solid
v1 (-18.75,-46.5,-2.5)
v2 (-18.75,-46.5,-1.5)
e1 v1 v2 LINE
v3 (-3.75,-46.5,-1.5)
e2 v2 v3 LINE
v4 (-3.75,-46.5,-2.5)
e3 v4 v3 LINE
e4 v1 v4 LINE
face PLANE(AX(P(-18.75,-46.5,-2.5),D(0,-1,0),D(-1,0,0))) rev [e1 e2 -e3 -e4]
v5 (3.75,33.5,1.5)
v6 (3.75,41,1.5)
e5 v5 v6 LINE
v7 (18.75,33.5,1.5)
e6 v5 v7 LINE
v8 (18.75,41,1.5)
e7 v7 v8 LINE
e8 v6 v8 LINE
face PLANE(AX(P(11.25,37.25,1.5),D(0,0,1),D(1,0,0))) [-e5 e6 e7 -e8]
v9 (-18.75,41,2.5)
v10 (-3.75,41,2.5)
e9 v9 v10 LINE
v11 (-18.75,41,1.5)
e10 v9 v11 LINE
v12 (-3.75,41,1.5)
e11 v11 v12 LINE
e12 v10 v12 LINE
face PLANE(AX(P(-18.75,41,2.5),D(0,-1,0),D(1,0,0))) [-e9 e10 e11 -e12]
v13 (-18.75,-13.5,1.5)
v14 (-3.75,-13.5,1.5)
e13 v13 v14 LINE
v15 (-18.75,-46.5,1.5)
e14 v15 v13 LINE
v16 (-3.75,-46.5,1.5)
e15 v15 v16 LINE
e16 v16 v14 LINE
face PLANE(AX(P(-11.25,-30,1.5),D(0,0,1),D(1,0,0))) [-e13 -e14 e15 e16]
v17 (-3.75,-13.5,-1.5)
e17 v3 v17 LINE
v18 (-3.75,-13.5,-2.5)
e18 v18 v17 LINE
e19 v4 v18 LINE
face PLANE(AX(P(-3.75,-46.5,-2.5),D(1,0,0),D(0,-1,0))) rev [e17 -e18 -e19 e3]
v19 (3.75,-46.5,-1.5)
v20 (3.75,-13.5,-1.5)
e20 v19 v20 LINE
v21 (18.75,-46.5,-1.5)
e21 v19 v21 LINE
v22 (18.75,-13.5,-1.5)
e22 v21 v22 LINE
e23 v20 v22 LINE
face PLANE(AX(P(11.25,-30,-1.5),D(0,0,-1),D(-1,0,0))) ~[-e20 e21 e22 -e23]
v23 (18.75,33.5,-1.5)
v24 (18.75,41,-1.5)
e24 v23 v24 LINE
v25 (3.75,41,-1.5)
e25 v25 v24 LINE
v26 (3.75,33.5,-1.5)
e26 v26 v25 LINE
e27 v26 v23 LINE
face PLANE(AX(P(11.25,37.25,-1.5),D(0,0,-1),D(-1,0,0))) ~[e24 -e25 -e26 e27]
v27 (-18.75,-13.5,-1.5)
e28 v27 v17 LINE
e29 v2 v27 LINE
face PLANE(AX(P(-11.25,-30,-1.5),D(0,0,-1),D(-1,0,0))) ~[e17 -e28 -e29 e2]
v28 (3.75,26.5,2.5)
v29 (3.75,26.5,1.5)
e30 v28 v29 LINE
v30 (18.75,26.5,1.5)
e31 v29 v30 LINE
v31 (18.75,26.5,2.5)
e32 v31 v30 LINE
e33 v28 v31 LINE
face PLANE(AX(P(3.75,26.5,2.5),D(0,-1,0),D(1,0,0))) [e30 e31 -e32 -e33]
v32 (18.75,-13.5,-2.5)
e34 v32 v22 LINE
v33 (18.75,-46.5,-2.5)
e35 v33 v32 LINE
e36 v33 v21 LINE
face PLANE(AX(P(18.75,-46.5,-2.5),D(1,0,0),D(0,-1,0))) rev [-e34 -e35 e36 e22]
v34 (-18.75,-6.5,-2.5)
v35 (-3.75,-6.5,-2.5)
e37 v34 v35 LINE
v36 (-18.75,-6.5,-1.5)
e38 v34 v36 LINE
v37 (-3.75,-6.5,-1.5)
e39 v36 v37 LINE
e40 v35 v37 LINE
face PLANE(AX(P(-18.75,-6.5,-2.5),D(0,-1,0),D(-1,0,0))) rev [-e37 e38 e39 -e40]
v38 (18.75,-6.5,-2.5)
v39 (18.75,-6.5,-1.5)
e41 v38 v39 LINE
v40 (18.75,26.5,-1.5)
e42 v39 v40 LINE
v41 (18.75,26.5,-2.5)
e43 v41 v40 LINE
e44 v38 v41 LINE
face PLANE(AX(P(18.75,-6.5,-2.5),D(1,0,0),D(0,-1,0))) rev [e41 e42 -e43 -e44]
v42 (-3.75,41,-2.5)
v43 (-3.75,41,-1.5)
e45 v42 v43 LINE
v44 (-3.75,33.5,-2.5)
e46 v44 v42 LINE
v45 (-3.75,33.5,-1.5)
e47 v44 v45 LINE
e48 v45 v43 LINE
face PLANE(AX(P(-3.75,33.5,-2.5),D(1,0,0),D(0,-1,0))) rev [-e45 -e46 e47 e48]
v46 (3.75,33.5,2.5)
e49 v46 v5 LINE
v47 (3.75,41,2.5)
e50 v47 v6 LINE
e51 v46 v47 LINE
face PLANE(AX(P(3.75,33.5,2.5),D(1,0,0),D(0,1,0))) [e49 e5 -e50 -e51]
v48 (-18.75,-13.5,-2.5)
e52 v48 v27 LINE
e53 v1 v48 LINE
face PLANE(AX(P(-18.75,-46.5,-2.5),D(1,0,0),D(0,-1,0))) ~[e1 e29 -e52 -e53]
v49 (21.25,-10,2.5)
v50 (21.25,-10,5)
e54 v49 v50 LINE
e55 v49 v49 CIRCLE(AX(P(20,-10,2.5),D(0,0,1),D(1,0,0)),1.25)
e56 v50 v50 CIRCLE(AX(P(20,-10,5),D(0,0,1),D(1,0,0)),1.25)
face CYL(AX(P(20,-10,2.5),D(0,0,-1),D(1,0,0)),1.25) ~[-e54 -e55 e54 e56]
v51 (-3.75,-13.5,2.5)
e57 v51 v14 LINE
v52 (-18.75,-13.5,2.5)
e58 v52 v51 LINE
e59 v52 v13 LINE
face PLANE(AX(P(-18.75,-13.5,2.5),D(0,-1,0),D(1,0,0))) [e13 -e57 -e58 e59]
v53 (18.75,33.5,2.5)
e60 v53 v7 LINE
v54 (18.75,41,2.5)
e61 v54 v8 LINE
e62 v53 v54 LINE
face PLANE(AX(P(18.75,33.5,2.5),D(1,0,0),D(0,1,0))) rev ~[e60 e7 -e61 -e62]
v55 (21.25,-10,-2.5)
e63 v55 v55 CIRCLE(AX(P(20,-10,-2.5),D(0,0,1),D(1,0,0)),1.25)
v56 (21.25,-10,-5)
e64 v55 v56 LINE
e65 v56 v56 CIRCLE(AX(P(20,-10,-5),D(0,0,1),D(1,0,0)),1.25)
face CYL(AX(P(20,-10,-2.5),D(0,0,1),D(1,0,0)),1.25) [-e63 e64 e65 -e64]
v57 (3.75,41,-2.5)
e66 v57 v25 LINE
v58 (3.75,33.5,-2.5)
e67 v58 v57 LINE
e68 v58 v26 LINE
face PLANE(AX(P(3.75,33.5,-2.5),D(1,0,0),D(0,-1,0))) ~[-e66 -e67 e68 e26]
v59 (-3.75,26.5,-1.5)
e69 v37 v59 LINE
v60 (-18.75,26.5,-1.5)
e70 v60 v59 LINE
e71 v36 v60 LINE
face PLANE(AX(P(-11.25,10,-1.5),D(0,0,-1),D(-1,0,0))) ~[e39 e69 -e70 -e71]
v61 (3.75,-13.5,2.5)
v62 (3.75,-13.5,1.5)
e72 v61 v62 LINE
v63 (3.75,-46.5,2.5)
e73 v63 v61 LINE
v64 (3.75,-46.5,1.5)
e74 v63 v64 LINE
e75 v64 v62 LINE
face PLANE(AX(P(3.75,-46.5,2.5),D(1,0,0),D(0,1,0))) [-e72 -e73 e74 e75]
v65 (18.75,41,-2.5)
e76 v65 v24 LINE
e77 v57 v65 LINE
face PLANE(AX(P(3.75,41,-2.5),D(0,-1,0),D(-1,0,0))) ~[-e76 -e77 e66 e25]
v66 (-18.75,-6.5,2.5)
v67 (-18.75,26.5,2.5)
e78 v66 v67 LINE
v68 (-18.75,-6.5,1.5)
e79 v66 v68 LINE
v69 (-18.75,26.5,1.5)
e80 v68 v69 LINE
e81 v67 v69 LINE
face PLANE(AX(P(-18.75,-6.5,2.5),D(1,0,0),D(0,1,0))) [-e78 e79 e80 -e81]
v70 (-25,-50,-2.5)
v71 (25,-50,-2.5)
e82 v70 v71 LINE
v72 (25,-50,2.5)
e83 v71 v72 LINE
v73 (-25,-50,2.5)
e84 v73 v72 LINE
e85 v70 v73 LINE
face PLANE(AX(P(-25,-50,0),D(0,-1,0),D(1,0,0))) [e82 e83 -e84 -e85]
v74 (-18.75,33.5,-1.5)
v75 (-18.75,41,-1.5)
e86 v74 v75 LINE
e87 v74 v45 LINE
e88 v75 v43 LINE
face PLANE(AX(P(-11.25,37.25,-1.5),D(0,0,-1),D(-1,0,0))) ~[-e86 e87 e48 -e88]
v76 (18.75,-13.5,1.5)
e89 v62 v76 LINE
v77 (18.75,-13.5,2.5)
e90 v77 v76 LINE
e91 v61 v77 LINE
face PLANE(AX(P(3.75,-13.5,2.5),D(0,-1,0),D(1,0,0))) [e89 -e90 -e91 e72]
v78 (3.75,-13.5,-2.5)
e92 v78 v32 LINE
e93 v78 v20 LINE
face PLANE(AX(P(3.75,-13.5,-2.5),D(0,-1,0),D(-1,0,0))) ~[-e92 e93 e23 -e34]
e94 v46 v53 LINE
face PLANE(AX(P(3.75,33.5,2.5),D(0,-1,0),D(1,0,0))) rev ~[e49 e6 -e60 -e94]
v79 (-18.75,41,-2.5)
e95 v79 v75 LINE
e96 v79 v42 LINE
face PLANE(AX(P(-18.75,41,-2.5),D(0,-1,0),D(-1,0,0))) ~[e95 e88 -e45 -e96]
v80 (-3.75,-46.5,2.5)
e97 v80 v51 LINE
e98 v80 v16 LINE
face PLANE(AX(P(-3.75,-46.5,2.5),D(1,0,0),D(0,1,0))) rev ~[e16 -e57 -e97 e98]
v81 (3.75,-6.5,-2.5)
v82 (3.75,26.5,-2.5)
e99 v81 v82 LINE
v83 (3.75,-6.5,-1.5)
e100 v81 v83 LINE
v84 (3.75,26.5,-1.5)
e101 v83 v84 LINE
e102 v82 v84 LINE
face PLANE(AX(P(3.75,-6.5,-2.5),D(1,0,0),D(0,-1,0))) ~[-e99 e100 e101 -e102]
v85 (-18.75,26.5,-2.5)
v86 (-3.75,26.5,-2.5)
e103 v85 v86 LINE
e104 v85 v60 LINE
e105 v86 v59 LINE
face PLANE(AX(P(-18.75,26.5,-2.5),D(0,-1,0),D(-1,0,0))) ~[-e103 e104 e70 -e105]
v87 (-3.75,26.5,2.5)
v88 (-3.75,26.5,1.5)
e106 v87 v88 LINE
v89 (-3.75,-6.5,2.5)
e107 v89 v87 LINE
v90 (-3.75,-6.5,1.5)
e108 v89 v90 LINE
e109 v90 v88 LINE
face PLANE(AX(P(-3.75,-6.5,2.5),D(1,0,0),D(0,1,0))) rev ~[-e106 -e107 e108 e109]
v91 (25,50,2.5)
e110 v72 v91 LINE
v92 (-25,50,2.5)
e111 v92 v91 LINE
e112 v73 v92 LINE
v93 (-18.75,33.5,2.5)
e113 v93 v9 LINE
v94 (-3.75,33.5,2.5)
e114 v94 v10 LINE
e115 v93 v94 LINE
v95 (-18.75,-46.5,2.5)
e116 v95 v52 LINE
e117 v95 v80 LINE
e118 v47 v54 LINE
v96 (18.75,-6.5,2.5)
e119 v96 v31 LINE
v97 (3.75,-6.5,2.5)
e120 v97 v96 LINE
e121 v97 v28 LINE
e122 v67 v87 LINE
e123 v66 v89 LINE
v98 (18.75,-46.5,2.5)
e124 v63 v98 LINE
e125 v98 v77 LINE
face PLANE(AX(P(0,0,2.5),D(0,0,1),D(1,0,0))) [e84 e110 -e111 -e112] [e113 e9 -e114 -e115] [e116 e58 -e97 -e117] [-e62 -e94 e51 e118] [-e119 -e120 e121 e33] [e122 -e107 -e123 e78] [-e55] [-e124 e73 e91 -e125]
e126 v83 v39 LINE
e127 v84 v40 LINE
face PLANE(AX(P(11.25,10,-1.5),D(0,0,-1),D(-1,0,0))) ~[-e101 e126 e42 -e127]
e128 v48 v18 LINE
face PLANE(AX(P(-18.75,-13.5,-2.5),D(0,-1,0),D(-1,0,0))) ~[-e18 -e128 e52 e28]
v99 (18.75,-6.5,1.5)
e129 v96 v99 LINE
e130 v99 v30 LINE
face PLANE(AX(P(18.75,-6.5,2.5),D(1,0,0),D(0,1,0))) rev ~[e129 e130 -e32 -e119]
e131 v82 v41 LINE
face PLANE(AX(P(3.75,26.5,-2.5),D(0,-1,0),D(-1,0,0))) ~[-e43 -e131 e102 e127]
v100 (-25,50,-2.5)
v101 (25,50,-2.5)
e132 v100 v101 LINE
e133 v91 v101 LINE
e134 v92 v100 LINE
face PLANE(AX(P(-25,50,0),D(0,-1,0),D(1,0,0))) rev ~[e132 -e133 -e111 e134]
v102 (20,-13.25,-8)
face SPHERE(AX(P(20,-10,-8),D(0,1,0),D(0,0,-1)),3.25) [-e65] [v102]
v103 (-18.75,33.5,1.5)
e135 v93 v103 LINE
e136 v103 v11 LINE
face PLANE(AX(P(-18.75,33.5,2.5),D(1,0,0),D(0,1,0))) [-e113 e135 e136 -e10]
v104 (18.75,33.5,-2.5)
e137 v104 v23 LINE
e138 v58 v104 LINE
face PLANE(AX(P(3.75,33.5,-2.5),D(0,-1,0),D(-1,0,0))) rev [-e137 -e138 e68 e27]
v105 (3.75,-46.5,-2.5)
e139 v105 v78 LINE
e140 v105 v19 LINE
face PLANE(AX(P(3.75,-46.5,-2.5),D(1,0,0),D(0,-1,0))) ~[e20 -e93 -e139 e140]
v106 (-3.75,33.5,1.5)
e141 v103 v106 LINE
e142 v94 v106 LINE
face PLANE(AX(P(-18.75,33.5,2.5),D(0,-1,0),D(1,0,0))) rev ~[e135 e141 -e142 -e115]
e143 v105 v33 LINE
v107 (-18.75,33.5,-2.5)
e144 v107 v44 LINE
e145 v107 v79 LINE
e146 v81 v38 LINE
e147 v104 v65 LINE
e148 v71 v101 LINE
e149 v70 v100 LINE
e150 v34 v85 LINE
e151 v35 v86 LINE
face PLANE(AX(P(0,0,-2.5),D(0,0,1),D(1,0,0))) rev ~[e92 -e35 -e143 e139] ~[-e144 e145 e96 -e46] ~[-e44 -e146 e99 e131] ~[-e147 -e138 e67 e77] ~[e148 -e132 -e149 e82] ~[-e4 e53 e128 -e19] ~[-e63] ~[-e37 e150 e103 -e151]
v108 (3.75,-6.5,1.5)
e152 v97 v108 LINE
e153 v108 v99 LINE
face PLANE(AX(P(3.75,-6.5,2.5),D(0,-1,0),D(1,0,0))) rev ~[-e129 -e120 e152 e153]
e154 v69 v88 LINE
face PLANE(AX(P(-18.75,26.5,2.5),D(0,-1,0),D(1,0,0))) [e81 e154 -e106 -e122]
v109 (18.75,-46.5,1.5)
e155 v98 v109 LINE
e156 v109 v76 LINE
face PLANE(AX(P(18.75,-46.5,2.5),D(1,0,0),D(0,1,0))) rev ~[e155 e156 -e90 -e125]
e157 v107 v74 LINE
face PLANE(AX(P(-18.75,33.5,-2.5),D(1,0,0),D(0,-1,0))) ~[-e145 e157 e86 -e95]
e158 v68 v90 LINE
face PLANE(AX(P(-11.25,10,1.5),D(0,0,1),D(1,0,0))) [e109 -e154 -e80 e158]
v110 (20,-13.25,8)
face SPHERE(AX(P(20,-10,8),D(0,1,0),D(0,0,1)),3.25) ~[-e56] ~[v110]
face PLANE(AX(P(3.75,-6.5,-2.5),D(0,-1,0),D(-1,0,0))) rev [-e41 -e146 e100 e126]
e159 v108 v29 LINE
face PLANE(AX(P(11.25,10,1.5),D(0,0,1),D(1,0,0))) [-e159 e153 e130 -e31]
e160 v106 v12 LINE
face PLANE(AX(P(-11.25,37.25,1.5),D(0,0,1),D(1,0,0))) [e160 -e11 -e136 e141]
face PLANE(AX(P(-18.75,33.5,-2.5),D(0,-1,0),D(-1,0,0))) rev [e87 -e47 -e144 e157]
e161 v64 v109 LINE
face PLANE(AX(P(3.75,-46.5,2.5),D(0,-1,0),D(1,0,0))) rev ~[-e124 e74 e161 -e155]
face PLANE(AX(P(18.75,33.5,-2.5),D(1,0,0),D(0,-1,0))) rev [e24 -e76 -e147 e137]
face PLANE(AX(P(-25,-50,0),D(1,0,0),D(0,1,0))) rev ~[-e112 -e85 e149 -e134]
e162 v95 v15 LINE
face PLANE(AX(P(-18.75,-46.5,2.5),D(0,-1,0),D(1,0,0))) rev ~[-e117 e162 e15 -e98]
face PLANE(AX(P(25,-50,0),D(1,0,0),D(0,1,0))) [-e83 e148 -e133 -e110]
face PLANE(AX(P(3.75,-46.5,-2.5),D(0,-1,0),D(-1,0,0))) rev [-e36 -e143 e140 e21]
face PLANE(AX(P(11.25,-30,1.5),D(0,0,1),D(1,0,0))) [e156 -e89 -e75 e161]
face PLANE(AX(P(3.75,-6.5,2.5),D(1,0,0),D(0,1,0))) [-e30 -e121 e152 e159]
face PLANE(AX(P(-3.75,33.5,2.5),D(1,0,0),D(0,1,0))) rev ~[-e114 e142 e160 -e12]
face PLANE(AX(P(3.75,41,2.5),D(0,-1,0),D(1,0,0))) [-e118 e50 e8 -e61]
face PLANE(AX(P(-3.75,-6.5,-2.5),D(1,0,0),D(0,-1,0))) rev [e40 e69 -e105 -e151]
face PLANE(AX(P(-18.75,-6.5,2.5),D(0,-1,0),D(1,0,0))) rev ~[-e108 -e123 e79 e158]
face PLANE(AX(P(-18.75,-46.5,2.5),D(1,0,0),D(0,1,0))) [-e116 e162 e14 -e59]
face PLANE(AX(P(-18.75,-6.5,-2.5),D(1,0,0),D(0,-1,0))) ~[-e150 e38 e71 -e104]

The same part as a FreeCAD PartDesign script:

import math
import FreeCAD as App
import Part
import Sketcher
Q = App.Units.Quantity

doc = App.newDocument("Part")
body = doc.addObject("PartDesign::Body", "Body")

sketch1 = doc.addObject("Sketcher::SketchObject", "Sketch")
body.addObject(sketch1)
sketch1.AttachmentSupport = (doc.XY_Plane, [""])
sketch1.MapMode = "FlatFace"
sketch1.addGeometry(Part.LineSegment(App.Vector(-25, 50, 0), App.Vector(-25, -50, 0)), False)
sketch1.addGeometry(Part.LineSegment(App.Vector(-25, -50, 0), App.Vector(25, -50, 0)), False)
sketch1.addGeometry(Part.LineSegment(App.Vector(25, -50, 0), App.Vector(25, 50, 0)), False)
sketch1.addGeometry(Part.LineSegment(App.Vector(25, 50, 0), App.Vector(-25, 50, 0)), False)
sketch1.addConstraint(Sketcher.Constraint("Coincident", 0, 2, 1, 1))
sketch1.addConstraint(Sketcher.Constraint("Coincident", 1, 2, 2, 1))
sketch1.addConstraint(Sketcher.Constraint("Coincident", 2, 2, 3, 1))
sketch1.addConstraint(Sketcher.Constraint("Coincident", 3, 2, 0, 1))
sketch1.addConstraint(Sketcher.Constraint("Vertical", 0))
sketch1.addConstraint(Sketcher.Constraint("Horizontal", 1))
sketch1.addConstraint(Sketcher.Constraint("Vertical", 2))
sketch1.addConstraint(Sketcher.Constraint("Horizontal", 3))
sketch1.addConstraint(Sketcher.Constraint("Symmetric", 0, 2, 2, 2, -1, 1))
sketch1.addConstraint(Sketcher.Constraint("DistanceX", 1, 1, 1, 2, Q("50 mm")))
sketch1.addConstraint(Sketcher.Constraint("DistanceY", 0, 2, 0, 1, Q("100 mm")))
pad1 = doc.addObject("PartDesign::Pad", "Pad")
body.addObject(pad1)
pad1.Profile = sketch1
pad1.Length = 5
pad1.Midplane = True

sketch2 = doc.addObject("Sketcher::SketchObject", "Sketch001")
body.addObject(sketch2)
sketch2.AttachmentSupport = (doc.XY_Plane, [""])
sketch2.MapMode = "FlatFace"
sketch2.AttachmentOffset = App.Placement(App.Vector(0, 0, 2.5), App.Rotation())
sketch2.addGeometry(Part.Circle(App.Vector(20, -10, 0), App.Vector(0, 0, 1), 1.2), False)
sketch2.addConstraint(Sketcher.Constraint("Diameter", 0, Q("2.5 mm")))
sketch2.addConstraint(Sketcher.Constraint("DistanceX", -1, 1, 0, 3, Q("20 mm")))
sketch2.addConstraint(Sketcher.Constraint("DistanceY", 0, 3, -1, 1, Q("10 mm")))
pad2 = doc.addObject("PartDesign::Pad", "Pad001")
body.addObject(pad2)
pad2.Profile = sketch2
pad2.Length = 2.5

sketch3 = doc.addObject("Sketcher::SketchObject", "Sketch002")
body.addObject(sketch3)
sketch3.AttachmentSupport = (doc.YZ_Plane, [""])
sketch3.MapMode = "FlatFace"
sketch3.AttachmentOffset = App.Placement(App.Vector(0, 0, 20), App.Rotation())
sketch3.addGeometry(Part.LineSegment(App.Vector(-13.2, 8, 0), App.Vector(-6.8, 8, 0)), False)
sketch3.addGeometry(Part.ArcOfCircle(Part.Circle(App.Vector(-10, 8, 0), App.Vector(0, 0, 1), 3.2), math.radians(0), math.radians(180)), False)
sketch3.addGeometry(Part.LineSegment(App.Vector(-6.8, 8, 0), App.Vector(-13.2, 8, 0)), True)
sketch3.addConstraint(Sketcher.Constraint("Coincident", 0, 1, 1, 2))
sketch3.addConstraint(Sketcher.Constraint("Coincident", 1, 1, 0, 2))
sketch3.addConstraint(Sketcher.Constraint("Horizontal", 0))
sketch3.addConstraint(Sketcher.Constraint("Horizontal", 2))
sketch3.addConstraint(Sketcher.Constraint("Coincident", 2, 1, 1, 1))
sketch3.addConstraint(Sketcher.Constraint("Horizontal", 1, 3, 0, 1))
sketch3.addConstraint(Sketcher.Constraint("Equal", 0, 2))
sketch3.addConstraint(Sketcher.Constraint("Radius", 1, Q("3.25 mm")))
sketch3.addConstraint(Sketcher.Constraint("DistanceX", 1, 3, -1, 1, Q("10 mm")))
sketch3.addConstraint(Sketcher.Constraint("DistanceY", -1, 1, 1, 3, Q("8 mm")))
revolution = doc.addObject("PartDesign::Revolution", "Revolution")
body.addObject(revolution)
revolution.Profile = sketch3
revolution.ReferenceAxis = (sketch3, ["Axis0"])
revolution.Angle = 360

sketch4 = doc.addObject("Sketcher::SketchObject", "Sketch003")
body.addObject(sketch4)
sketch4.AttachmentSupport = (doc.XY_Plane, [""])
sketch4.MapMode = "FlatFace"
sketch4.AttachmentOffset = App.Placement(App.Vector(0, 0, 2.5), App.Rotation())
sketch4.addGeometry(Part.LineSegment(App.Vector(-19, 41, 0), App.Vector(-19, 34, 0)), False)
sketch4.addGeometry(Part.LineSegment(App.Vector(-19, 34, 0), App.Vector(-4, 34, 0)), False)
sketch4.addGeometry(Part.LineSegment(App.Vector(-4, 34, 0), App.Vector(-4, 41, 0)), False)
sketch4.addGeometry(Part.LineSegment(App.Vector(-4, 41, 0), App.Vector(-19, 41, 0)), False)
sketch4.addGeometry(Part.LineSegment(App.Vector(4, 41, 0), App.Vector(4, 34, 0)), False)
sketch4.addGeometry(Part.LineSegment(App.Vector(4, 34, 0), App.Vector(19, 34, 0)), False)
sketch4.addGeometry(Part.LineSegment(App.Vector(19, 34, 0), App.Vector(19, 41, 0)), False)
sketch4.addGeometry(Part.LineSegment(App.Vector(19, 41, 0), App.Vector(4, 41, 0)), False)
sketch4.addGeometry(Part.LineSegment(App.Vector(4, 26, 0), App.Vector(4, -6, 0)), False)
sketch4.addGeometry(Part.LineSegment(App.Vector(4, -6, 0), App.Vector(19, -6, 0)), False)
sketch4.addGeometry(Part.LineSegment(App.Vector(19, -6, 0), App.Vector(19, 26, 0)), False)
sketch4.addGeometry(Part.LineSegment(App.Vector(19, 26, 0), App.Vector(4, 26, 0)), False)
sketch4.addGeometry(Part.LineSegment(App.Vector(-19, 26, 0), App.Vector(-19, -6, 0)), False)
sketch4.addGeometry(Part.LineSegment(App.Vector(-19, -6, 0), App.Vector(-4, -6, 0)), False)
sketch4.addGeometry(Part.LineSegment(App.Vector(-4, -6, 0), App.Vector(-4, 26, 0)), False)
sketch4.addGeometry(Part.LineSegment(App.Vector(-4, 26, 0), App.Vector(-19, 26, 0)), False)
sketch4.addGeometry(Part.LineSegment(App.Vector(-19, -14, 0), App.Vector(-19, -46, 0)), False)
sketch4.addGeometry(Part.LineSegment(App.Vector(-19, -46, 0), App.Vector(-4, -46, 0)), False)
sketch4.addGeometry(Part.LineSegment(App.Vector(-4, -46, 0), App.Vector(-4, -14, 0)), False)
sketch4.addGeometry(Part.LineSegment(App.Vector(-4, -14, 0), App.Vector(-19, -14, 0)), False)
sketch4.addGeometry(Part.LineSegment(App.Vector(4, -14, 0), App.Vector(4, -46, 0)), False)
sketch4.addGeometry(Part.LineSegment(App.Vector(4, -46, 0), App.Vector(19, -46, 0)), False)
sketch4.addGeometry(Part.LineSegment(App.Vector(19, -46, 0), App.Vector(19, -14, 0)), False)
sketch4.addGeometry(Part.LineSegment(App.Vector(19, -14, 0), App.Vector(4, -14, 0)), False)
sketch4.addConstraint(Sketcher.Constraint("Coincident", 0, 2, 1, 1))
sketch4.addConstraint(Sketcher.Constraint("Coincident", 1, 2, 2, 1))
sketch4.addConstraint(Sketcher.Constraint("Coincident", 2, 2, 3, 1))
sketch4.addConstraint(Sketcher.Constraint("Coincident", 3, 2, 0, 1))
sketch4.addConstraint(Sketcher.Constraint("Coincident", 4, 2, 5, 1))
sketch4.addConstraint(Sketcher.Constraint("Coincident", 5, 2, 6, 1))
sketch4.addConstraint(Sketcher.Constraint("Coincident", 6, 2, 7, 1))
sketch4.addConstraint(Sketcher.Constraint("Coincident", 7, 2, 4, 1))
sketch4.addConstraint(Sketcher.Constraint("Coincident", 8, 2, 9, 1))
sketch4.addConstraint(Sketcher.Constraint("Coincident", 9, 2, 10, 1))
sketch4.addConstraint(Sketcher.Constraint("Coincident", 10, 2, 11, 1))
sketch4.addConstraint(Sketcher.Constraint("Coincident", 11, 2, 8, 1))
sketch4.addConstraint(Sketcher.Constraint("Coincident", 12, 2, 13, 1))
sketch4.addConstraint(Sketcher.Constraint("Coincident", 13, 2, 14, 1))
sketch4.addConstraint(Sketcher.Constraint("Coincident", 14, 2, 15, 1))
sketch4.addConstraint(Sketcher.Constraint("Coincident", 15, 2, 12, 1))
sketch4.addConstraint(Sketcher.Constraint("Coincident", 16, 2, 17, 1))
sketch4.addConstraint(Sketcher.Constraint("Coincident", 17, 2, 18, 1))
sketch4.addConstraint(Sketcher.Constraint("Coincident", 18, 2, 19, 1))
sketch4.addConstraint(Sketcher.Constraint("Coincident", 19, 2, 16, 1))
sketch4.addConstraint(Sketcher.Constraint("Coincident", 20, 2, 21, 1))
sketch4.addConstraint(Sketcher.Constraint("Coincident", 21, 2, 22, 1))
sketch4.addConstraint(Sketcher.Constraint("Coincident", 22, 2, 23, 1))
sketch4.addConstraint(Sketcher.Constraint("Coincident", 23, 2, 20, 1))
sketch4.addConstraint(Sketcher.Constraint("Vertical", 0))
sketch4.addConstraint(Sketcher.Constraint("Horizontal", 1))
sketch4.addConstraint(Sketcher.Constraint("Vertical", 2))
sketch4.addConstraint(Sketcher.Constraint("Horizontal", 3))
sketch4.addConstraint(Sketcher.Constraint("Vertical", 4))
sketch4.addConstraint(Sketcher.Constraint("Horizontal", 5))
sketch4.addConstraint(Sketcher.Constraint("Vertical", 6))
sketch4.addConstraint(Sketcher.Constraint("Horizontal", 7))
sketch4.addConstraint(Sketcher.Constraint("Vertical", 8))
sketch4.addConstraint(Sketcher.Constraint("Horizontal", 9))
sketch4.addConstraint(Sketcher.Constraint("Vertical", 10))
sketch4.addConstraint(Sketcher.Constraint("Horizontal", 11))
sketch4.addConstraint(Sketcher.Constraint("Vertical", 12))
sketch4.addConstraint(Sketcher.Constraint("Horizontal", 13))
sketch4.addConstraint(Sketcher.Constraint("Vertical", 14))
sketch4.addConstraint(Sketcher.Constraint("Horizontal", 15))
sketch4.addConstraint(Sketcher.Constraint("Vertical", 16))
sketch4.addConstraint(Sketcher.Constraint("Horizontal", 17))
sketch4.addConstraint(Sketcher.Constraint("Vertical", 18))
sketch4.addConstraint(Sketcher.Constraint("Horizontal", 19))
sketch4.addConstraint(Sketcher.Constraint("Vertical", 20))
sketch4.addConstraint(Sketcher.Constraint("Horizontal", 21))
sketch4.addConstraint(Sketcher.Constraint("Vertical", 22))
sketch4.addConstraint(Sketcher.Constraint("Horizontal", 23))
sketch4.addConstraint(Sketcher.Constraint("Symmetric", 1, 2, 4, 2, -2))
sketch4.addConstraint(Sketcher.Constraint("Symmetric", 3, 2, 6, 2, -2))
sketch4.addConstraint(Sketcher.Constraint("Symmetric", 9, 2, 12, 2, -2))
sketch4.addConstraint(Sketcher.Constraint("Symmetric", 11, 2, 14, 2, -2))
sketch4.addConstraint(Sketcher.Constraint("Symmetric", 17, 2, 20, 2, -2))
sketch4.addConstraint(Sketcher.Constraint("Symmetric", 19, 2, 22, 2, -2))
sketch4.addConstraint(Sketcher.Constraint("Vertical", 7, 2, 8, 2))
sketch4.addConstraint(Sketcher.Constraint("Vertical", 6, 2, 9, 2))
sketch4.addConstraint(Sketcher.Constraint("Vertical", 15, 2, 16, 2))
sketch4.addConstraint(Sketcher.Constraint("Vertical", 14, 2, 17, 2))
sketch4.addConstraint(Sketcher.Constraint("Equal", 14, 16))
sketch4.addConstraint(Sketcher.Constraint("DistanceX", 1, 1, 1, 2, Q("15 mm")))
sketch4.addConstraint(Sketcher.Constraint("DistanceY", 8, 2, 8, 1, Q("33 mm")))
sketch4.addConstraint(Sketcher.Constraint("DistanceY", 0, 2, 0, 1, Q("7.5 mm")))
sketch4.addConstraint(Sketcher.Constraint("DistanceY", -1, 1, 2, 2, Q("41 mm")))
sketch4.addConstraint(Sketcher.Constraint("DistanceY", 8, 2, 4, 2, Q("40 mm")))
sketch4.addConstraint(Sketcher.Constraint("DistanceY", 16, 2, 12, 2, Q("40 mm")))
sketch4.addConstraint(Sketcher.Constraint("DistanceX", 1, 2, 4, 2, Q("7.5 mm")))
pocket1 = doc.addObject("PartDesign::Pocket", "Pocket")
body.addObject(pocket1)
pocket1.Profile = sketch4
pocket1.Length = 1
doc.recompute()

mirrored = doc.addObject("PartDesign::Mirrored", "Mirrored")
body.addObject(mirrored)
mirrored.Originals = [pad2, revolution, pocket1]
mirrored.MirrorPlane = (doc.XY_Plane, [""])
body.Tip = mirrored

doc.recompute()
